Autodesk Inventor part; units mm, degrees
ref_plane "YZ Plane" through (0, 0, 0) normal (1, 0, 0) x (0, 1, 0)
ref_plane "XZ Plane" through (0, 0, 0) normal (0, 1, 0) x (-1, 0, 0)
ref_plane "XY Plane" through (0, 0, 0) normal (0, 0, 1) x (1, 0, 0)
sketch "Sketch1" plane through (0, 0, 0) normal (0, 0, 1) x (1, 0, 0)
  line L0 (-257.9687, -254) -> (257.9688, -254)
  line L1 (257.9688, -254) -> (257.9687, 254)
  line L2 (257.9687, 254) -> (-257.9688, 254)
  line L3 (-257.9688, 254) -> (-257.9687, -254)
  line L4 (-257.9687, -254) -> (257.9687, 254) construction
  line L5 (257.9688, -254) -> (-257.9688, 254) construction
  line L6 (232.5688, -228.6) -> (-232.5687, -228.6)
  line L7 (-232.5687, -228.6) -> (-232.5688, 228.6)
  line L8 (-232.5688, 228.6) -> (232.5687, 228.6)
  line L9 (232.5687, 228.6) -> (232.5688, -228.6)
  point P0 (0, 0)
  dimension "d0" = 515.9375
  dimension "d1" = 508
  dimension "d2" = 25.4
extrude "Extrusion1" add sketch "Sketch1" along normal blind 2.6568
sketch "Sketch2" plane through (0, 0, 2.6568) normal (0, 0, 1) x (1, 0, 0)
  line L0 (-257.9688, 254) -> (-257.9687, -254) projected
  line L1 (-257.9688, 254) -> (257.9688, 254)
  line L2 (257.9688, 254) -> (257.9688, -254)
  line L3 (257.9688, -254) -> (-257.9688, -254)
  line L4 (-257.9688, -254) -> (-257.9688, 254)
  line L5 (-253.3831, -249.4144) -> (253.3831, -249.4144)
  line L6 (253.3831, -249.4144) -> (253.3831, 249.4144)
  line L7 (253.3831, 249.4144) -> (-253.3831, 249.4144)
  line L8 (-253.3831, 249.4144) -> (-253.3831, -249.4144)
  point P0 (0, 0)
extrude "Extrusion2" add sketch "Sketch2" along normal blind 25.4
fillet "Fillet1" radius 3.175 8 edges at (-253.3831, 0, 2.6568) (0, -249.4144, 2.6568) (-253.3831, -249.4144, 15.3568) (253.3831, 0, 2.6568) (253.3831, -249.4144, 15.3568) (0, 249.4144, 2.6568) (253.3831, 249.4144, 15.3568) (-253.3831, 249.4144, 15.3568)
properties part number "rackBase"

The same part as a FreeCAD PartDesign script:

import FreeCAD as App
import Part
import Sketcher
Q = App.Units.Quantity


def edges_at(feature, points):
    """Names of the edges that pass closest to the given points."""
    edges = feature.Shape.Edges
    near = lambda p: min(range(len(edges)), key=lambda i: edges[i].distToShape(Part.Vertex(*p))[0])
    return sorted({f"Edge{near(p) + 1}" for p in points})


def add_polygon(sketch, points):
    """Adds a closed chain of lines whose ends are joined by coincident constraints."""
    first, n = sketch.GeometryCount, len(points)
    for a, b in zip(points, points[1:] + points[:1]):
        sketch.addGeometry(Part.LineSegment(App.Vector(*a, 0), App.Vector(*b, 0)), False)
    for i in range(n):
        sketch.addConstraint(Sketcher.Constraint("Coincident", first + i, 2, first + (i + 1) % n, 1))

doc = App.newDocument("Part")
params = doc.addObject("Spreadsheet::Sheet", "Params")
for row, (alias, value) in enumerate([
    ("sketch1_height", "20 in"),
    ("sketch1_width", "20.3125 in"),
    ("pad1_length", "0.1045984 in"),
    ("sketch2_height", "20 in"),
    ("sketch2_width", "20.3125 in"),
    ("pad2_length", "1 in"),
    ("fillet_radius", "0.125 in"),
], start=1):
    params.set(f"A{row}", alias)
    params.set(f"B{row}", "=" + value)
    params.setAlias(f"B{row}", alias)

body = doc.addObject("PartDesign::Body", "Body")

# Sketch on XY plane
sketch1 = body.newObject("Sketcher::SketchObject", "Sketch")
sketch1.AttachmentSupport = (doc.getObject("XY_Plane"), [""])
sketch1.MapMode = "FlatFace"
add_polygon(sketch1, [(-258, 254), (-258, -254), (258, -254), (258, 254)])  # lines 0-3
add_polygon(sketch1, [(233, 229), (233, -229), (-233, -229), (-233, 229)])  # lines 4-7
sketch1.addConstraint([
    Sketcher.Constraint("Vertical", 0),
    Sketcher.Constraint("Horizontal", 1),
    Sketcher.Constraint("Vertical", 2),
    Sketcher.Constraint("Horizontal", 3),
    Sketcher.Constraint("Vertical", 4),
    Sketcher.Constraint("Horizontal", 5),
    Sketcher.Constraint("Vertical", 6),
    Sketcher.Constraint("Horizontal", 7),
    Sketcher.Constraint("Symmetric", 0, 2, 2, 2, -1, 1),
    Sketcher.Constraint("Symmetric", 4, 2, 6, 2, -1, 1),
    Sketcher.Constraint("DistanceY", 0, 2, 0, 1, Q("20 in")),
    Sketcher.Constraint("DistanceX", 4, 2, 1, 2, Q("1 in")),
    Sketcher.Constraint("DistanceY", 1, 2, 4, 2, Q("1 in")),
    Sketcher.Constraint("DistanceX", 1, 1, 1, 2, Q("20.3125 in")),
])
sketch1.setExpression("Constraints[18]", "Params.sketch1_height")
sketch1.setExpression("Constraints[21]", "Params.sketch1_width")
pad1 = body.newObject("PartDesign::Pad", "Pad")
pad1.Profile = sketch1
pad1.setExpression("Length", "Params.pad1_length")

# Sketch on XY plane
sketch2 = body.newObject("Sketcher::SketchObject", "Sketch001")
sketch2.AttachmentSupport = (doc.getObject("XY_Plane"), [""])
sketch2.MapMode = "FlatFace"
sketch2.AttachmentOffset = App.Placement(App.Vector(0, 0, 0.1045984 * 25.4), App.Rotation())
add_polygon(sketch2, [(258, 254), (-258, 254), (-258, -254), (258, -254)])  # lines 0-3
add_polygon(sketch2, [(253, -249), (-253, -249), (-253, 249), (253, 249)])  # lines 4-7
sketch2.addConstraint([
    Sketcher.Constraint("Horizontal", 0),
    Sketcher.Constraint("Vertical", 1),
    Sketcher.Constraint("Horizontal", 2),
    Sketcher.Constraint("Vertical", 3),
    Sketcher.Constraint("Horizontal", 4),
    Sketcher.Constraint("Vertical", 5),
    Sketcher.Constraint("Horizontal", 6),
    Sketcher.Constraint("Vertical", 7),
    Sketcher.Constraint("Symmetric", 0, 2, 2, 2, -1, 1),
    Sketcher.Constraint("Symmetric", 4, 2, 6, 2, -1, 1),
    Sketcher.Constraint("DistanceY", 1, 2, 1, 1, Q("20 in")),
    Sketcher.Constraint("DistanceX", 0, 2, 0, 1, Q("20.3125 in")),
    Sketcher.Constraint("DistanceX", 4, 2, 4, 1, Q("506.7662 mm")),
    Sketcher.Constraint("DistanceY", 5, 1, 5, 2, Q("498.8288 mm")),
])
sketch2.setExpression("Constraints[18]", "Params.sketch2_height")
sketch2.setExpression("Constraints[19]", "Params.sketch2_width")
pad2 = body.newObject("PartDesign::Pad", "Pad001")
pad2.Profile = sketch2
pad2.setExpression("Length", "Params.pad2_length")
doc.recompute()

fillet = body.newObject("PartDesign::Fillet", "Fillet")
fillet.Base = (pad2, edges_at(pad2, [
    (-253.383, 0, 2.657),
    (0, -249.414, 2.657),
    (-253.383, -249.414, 15.357),
    (253.383, 0, 2.657),
    (253.383, -249.414, 15.357),
    (0, 249.414, 2.657),
    (253.383, 249.414, 15.357),
    (-253.383, 249.414, 15.357),
]))
fillet.setExpression("Radius", "Params.fillet_radius")

doc.recompute()
